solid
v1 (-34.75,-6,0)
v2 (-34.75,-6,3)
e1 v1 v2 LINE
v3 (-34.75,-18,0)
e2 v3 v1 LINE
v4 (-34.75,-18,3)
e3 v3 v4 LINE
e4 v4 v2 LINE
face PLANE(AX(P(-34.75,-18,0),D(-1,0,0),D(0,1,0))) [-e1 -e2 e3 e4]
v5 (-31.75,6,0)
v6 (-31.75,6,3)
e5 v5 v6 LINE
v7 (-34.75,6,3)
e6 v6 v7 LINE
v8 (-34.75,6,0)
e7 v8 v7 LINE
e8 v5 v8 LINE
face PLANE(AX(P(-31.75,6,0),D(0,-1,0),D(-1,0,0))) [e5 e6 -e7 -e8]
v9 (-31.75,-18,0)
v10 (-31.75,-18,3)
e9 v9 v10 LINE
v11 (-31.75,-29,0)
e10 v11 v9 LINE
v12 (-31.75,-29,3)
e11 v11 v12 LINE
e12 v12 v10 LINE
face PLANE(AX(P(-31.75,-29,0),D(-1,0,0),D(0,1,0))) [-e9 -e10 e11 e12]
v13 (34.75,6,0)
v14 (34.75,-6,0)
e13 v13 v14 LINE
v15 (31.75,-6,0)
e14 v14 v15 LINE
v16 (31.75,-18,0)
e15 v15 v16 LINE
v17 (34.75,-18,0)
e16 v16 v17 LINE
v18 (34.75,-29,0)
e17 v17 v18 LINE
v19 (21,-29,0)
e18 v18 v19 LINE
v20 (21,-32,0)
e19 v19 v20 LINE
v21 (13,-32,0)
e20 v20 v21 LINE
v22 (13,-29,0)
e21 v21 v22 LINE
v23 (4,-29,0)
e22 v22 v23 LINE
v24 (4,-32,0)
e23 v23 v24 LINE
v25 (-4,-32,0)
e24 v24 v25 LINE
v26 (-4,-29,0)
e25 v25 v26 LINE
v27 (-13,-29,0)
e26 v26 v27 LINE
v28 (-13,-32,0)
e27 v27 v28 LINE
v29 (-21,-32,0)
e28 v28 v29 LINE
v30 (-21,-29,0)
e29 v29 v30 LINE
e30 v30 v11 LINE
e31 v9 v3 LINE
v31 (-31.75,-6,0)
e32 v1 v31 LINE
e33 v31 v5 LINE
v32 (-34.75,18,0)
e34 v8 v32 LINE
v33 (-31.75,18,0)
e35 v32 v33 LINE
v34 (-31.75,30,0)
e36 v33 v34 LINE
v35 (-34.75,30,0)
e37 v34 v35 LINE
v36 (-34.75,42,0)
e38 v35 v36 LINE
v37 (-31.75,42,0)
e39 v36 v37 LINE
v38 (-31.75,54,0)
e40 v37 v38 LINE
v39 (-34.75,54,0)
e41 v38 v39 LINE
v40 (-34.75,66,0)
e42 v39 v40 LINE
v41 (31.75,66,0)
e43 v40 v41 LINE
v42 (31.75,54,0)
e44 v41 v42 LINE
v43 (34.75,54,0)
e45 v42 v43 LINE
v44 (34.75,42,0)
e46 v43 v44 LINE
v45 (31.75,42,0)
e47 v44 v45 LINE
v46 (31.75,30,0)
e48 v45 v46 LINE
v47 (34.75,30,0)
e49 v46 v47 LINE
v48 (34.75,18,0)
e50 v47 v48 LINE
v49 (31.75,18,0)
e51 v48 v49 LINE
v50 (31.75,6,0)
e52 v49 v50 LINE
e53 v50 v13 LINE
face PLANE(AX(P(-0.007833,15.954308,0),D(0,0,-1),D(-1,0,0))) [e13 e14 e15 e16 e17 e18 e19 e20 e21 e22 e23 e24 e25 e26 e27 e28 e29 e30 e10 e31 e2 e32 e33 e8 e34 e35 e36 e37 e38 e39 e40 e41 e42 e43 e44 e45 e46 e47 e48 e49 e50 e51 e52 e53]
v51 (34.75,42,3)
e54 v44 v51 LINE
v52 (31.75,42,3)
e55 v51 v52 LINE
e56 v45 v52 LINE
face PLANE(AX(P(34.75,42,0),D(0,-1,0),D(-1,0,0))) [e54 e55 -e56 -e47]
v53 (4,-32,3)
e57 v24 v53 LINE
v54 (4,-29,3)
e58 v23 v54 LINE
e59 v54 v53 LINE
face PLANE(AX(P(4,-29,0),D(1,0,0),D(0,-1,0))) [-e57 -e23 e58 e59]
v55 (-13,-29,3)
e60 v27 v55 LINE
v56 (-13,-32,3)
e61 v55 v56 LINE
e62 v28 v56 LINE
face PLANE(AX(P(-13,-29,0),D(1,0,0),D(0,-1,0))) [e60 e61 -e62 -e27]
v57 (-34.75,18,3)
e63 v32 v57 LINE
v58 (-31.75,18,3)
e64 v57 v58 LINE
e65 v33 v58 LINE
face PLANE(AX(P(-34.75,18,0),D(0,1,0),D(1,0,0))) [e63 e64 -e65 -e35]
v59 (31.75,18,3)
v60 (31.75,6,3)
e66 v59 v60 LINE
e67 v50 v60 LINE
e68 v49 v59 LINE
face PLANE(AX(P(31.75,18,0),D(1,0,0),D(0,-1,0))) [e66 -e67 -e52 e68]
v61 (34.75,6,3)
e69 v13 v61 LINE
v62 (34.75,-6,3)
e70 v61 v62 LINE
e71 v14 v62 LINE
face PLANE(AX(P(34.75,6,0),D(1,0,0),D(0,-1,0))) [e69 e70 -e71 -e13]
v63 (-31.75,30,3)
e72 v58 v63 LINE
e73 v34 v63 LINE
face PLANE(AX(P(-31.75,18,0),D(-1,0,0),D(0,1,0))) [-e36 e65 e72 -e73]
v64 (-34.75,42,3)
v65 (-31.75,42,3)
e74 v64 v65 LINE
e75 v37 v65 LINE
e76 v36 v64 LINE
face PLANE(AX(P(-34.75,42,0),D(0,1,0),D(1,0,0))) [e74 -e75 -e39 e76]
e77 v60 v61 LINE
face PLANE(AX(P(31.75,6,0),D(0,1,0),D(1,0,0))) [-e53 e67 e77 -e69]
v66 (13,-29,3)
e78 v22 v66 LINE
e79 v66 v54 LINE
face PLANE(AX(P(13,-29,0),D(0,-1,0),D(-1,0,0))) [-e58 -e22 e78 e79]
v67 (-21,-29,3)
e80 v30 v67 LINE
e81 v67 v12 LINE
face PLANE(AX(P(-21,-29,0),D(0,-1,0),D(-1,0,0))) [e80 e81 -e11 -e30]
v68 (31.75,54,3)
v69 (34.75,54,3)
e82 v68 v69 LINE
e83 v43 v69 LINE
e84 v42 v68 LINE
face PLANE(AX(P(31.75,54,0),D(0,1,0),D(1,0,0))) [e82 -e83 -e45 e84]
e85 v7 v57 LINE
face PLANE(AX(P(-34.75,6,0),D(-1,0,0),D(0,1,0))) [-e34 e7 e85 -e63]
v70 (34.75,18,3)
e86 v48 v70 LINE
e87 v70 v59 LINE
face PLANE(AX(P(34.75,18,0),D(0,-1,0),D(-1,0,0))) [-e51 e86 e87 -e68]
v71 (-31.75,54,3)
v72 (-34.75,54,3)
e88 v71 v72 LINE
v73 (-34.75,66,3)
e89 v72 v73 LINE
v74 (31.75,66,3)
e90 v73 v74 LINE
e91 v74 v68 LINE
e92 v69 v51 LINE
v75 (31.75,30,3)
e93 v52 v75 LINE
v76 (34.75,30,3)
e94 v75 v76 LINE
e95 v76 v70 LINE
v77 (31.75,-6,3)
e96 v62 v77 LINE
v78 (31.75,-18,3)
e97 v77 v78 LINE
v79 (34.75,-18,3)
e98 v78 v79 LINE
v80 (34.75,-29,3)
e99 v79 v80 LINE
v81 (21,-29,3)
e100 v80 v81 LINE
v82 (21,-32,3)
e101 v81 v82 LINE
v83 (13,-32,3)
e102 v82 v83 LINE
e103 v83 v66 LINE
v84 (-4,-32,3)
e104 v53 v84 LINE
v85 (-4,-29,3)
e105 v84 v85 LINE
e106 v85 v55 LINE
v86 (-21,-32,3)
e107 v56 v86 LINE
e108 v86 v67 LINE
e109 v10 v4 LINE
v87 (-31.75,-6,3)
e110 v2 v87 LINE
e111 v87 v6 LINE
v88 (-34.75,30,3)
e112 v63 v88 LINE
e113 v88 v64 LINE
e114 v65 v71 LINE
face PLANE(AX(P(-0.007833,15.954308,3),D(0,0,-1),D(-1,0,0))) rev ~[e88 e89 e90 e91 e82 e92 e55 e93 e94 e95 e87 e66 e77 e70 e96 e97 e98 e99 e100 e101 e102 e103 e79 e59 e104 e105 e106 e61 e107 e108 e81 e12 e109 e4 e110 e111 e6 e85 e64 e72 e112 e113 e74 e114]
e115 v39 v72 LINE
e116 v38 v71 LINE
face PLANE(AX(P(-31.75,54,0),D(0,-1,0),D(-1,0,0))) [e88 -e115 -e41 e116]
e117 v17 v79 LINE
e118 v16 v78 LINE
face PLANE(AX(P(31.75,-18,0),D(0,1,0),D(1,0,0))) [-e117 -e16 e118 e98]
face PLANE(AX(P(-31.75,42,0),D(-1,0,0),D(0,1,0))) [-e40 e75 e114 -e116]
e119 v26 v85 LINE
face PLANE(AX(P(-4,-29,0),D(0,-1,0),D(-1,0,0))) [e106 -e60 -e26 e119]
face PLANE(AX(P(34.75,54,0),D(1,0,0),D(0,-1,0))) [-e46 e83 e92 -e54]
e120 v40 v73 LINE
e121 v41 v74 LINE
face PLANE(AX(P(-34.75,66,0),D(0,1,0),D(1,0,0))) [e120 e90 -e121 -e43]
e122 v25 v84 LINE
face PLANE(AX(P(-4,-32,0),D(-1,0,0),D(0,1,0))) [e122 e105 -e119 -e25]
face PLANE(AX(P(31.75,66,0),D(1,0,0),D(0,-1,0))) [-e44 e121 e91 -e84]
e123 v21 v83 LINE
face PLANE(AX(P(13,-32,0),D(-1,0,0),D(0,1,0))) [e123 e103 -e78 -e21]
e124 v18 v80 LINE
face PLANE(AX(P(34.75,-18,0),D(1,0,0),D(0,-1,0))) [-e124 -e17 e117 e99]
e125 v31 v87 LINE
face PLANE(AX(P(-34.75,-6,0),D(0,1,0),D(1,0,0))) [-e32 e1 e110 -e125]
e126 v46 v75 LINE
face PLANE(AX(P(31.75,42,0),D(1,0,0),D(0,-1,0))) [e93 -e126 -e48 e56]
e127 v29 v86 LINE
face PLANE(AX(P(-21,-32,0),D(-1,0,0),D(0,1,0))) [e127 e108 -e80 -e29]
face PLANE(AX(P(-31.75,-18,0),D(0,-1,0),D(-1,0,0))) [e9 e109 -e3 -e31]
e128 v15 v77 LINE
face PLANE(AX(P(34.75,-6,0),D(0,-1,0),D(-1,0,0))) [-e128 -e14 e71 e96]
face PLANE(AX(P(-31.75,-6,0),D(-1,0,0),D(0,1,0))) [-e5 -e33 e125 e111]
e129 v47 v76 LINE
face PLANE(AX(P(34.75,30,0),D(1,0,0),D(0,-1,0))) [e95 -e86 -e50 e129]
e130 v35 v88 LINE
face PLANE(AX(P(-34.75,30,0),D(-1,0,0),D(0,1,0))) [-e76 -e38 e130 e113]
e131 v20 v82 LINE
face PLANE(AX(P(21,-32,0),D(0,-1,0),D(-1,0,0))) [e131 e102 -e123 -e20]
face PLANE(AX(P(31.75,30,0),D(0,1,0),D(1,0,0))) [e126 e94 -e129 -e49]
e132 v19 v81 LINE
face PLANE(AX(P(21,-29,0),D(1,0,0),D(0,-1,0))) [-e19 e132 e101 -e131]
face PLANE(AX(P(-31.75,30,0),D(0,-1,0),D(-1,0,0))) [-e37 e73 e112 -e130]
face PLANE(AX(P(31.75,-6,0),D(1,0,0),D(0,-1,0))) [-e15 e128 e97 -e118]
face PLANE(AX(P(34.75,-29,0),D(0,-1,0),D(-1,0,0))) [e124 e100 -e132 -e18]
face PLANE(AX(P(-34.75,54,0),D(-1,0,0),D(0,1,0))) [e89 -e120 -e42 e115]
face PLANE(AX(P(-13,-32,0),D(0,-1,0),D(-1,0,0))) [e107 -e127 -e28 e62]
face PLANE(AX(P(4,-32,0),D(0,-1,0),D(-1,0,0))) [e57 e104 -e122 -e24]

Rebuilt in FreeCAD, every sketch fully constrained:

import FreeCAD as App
import Part
import Sketcher
from FreeCAD import Vector

doc = App.newDocument("Part")
body = doc.addObject("PartDesign::Body", "Body")

sketch1 = body.newObject("Sketcher::SketchObject", "Sketch")
sketch1.AttachmentSupport = (doc.getObject("XY_Plane"), [""])
sketch1.MapMode = "FlatFace"
sketch1.addGeometry([
    Part.LineSegment(Vector(21, -29, 0), Vector(34.8, -29, 0)),
    Part.LineSegment(Vector(34.8, -29, 0), Vector(34.8, -18, 0)),
    Part.LineSegment(Vector(34.8, -18, 0), Vector(31.8, -18, 0)),
    Part.LineSegment(Vector(31.8, -18, 0), Vector(31.8, -6, 0)),
    Part.LineSegment(Vector(31.8, -6, 0), Vector(34.8, -6, 0)),
    Part.LineSegment(Vector(34.8, -6, 0), Vector(34.8, 6, 0)),
    Part.LineSegment(Vector(34.8, 6, 0), Vector(31.8, 6, 0)),
    Part.LineSegment(Vector(31.8, 6, 0), Vector(31.8, 18, 0)),
    Part.LineSegment(Vector(31.8, 18, 0), Vector(34.8, 18, 0)),
    Part.LineSegment(Vector(34.8, 18, 0), Vector(34.8, 30, 0)),
    Part.LineSegment(Vector(34.8, 30, 0), Vector(31.8, 30, 0)),
    Part.LineSegment(Vector(31.8, 30, 0), Vector(31.8, 42, 0)),
    Part.LineSegment(Vector(31.8, 42, 0), Vector(34.8, 42, 0)),
    Part.LineSegment(Vector(34.8, 42, 0), Vector(34.8, 54, 0)),
    Part.LineSegment(Vector(34.8, 54, 0), Vector(31.8, 54, 0)),
    Part.LineSegment(Vector(31.8, 54, 0), Vector(31.8, 66, 0)),
    Part.LineSegment(Vector(31.8, 66, 0), Vector(-34.8, 66, 0)),
    Part.LineSegment(Vector(-34.8, 66, 0), Vector(-34.8, 54, 0)),
    Part.LineSegment(Vector(-34.8, 54, 0), Vector(-31.8, 54, 0)),
    Part.LineSegment(Vector(-31.8, 54, 0), Vector(-31.8, 42, 0)),
    Part.LineSegment(Vector(-31.8, 42, 0), Vector(-34.8, 42, 0)),
    Part.LineSegment(Vector(-34.8, 42, 0), Vector(-34.8, 30, 0)),
    Part.LineSegment(Vector(-34.8, 30, 0), Vector(-31.8, 30, 0)),
    Part.LineSegment(Vector(-31.8, 30, 0), Vector(-31.8, 18, 0)),
    Part.LineSegment(Vector(-31.8, 18, 0), Vector(-34.8, 18, 0)),
    Part.LineSegment(Vector(-34.8, 18, 0), Vector(-34.8, 6, 0)),
    Part.LineSegment(Vector(-34.8, 6, 0), Vector(-31.8, 6, 0)),
    Part.LineSegment(Vector(-31.8, 6, 0), Vector(-31.8, -6, 0)),
    Part.LineSegment(Vector(-31.8, -6, 0), Vector(-34.8, -6, 0)),
    Part.LineSegment(Vector(-34.8, -6, 0), Vector(-34.8, -18, 0)),
    Part.LineSegment(Vector(-34.8, -18, 0), Vector(-31.8, -18, 0)),
    Part.LineSegment(Vector(-31.8, -18, 0), Vector(-31.8, -29, 0)),
    Part.LineSegment(Vector(-31.8, -29, 0), Vector(-21, -29, 0)),
    Part.LineSegment(Vector(-21, -29, 0), Vector(-21, -32, 0)),
    Part.LineSegment(Vector(-21, -32, 0), Vector(-13, -32, 0)),
    Part.LineSegment(Vector(-13, -32, 0), Vector(-13, -29, 0)),
    Part.LineSegment(Vector(-13, -29, 0), Vector(-4, -29, 0)),
    Part.LineSegment(Vector(-4, -29, 0), Vector(-4, -32, 0)),
    Part.LineSegment(Vector(-4, -32, 0), Vector(4, -32, 0)),
    Part.LineSegment(Vector(4, -32, 0), Vector(4, -29, 0)),
    Part.LineSegment(Vector(4, -29, 0), Vector(13, -29, 0)),
    Part.LineSegment(Vector(13, -29, 0), Vector(13, -32, 0)),
    Part.LineSegment(Vector(13, -32, 0), Vector(21, -32, 0)),
    Part.LineSegment(Vector(21, -32, 0), Vector(21, -29, 0)),
], False)
sketch1.addConstraint([
    Sketcher.Constraint("Coincident", 0, 2, 1, 1),
    Sketcher.Constraint("Coincident", 1, 2, 2, 1),
    Sketcher.Constraint("Coincident", 2, 2, 3, 1),
    Sketcher.Constraint("Coincident", 3, 2, 4, 1),
    Sketcher.Constraint("Coincident", 4, 2, 5, 1),
    Sketcher.Constraint("Coincident", 5, 2, 6, 1),
    Sketcher.Constraint("Coincident", 6, 2, 7, 1),
    Sketcher.Constraint("Coincident", 7, 2, 8, 1),
    Sketcher.Constraint("Coincident", 8, 2, 9, 1),
    Sketcher.Constraint("Coincident", 9, 2, 10, 1),
    Sketcher.Constraint("Coincident", 10, 2, 11, 1),
    Sketcher.Constraint("Coincident", 11, 2, 12, 1),
    Sketcher.Constraint("Coincident", 12, 2, 13, 1),
    Sketcher.Constraint("Coincident", 13, 2, 14, 1),
    Sketcher.Constraint("Coincident", 14, 2, 15, 1),
    Sketcher.Constraint("Coincident", 15, 2, 16, 1),
    Sketcher.Constraint("Coincident", 16, 2, 17, 1),
    Sketcher.Constraint("Coincident", 17, 2, 18, 1),
    Sketcher.Constraint("Coincident", 18, 2, 19, 1),
    Sketcher.Constraint("Coincident", 19, 2, 20, 1),
    Sketcher.Constraint("Coincident", 20, 2, 21, 1),
    Sketcher.Constraint("Coincident", 21, 2, 22, 1),
    Sketcher.Constraint("Coincident", 22, 2, 23, 1),
    Sketcher.Constraint("Coincident", 23, 2, 24, 1),
    Sketcher.Constraint("Coincident", 24, 2, 25, 1),
    Sketcher.Constraint("Coincident", 25, 2, 26, 1),
    Sketcher.Constraint("Coincident", 26, 2, 27, 1),
    Sketcher.Constraint("Coincident", 27, 2, 28, 1),
    Sketcher.Constraint("Coincident", 28, 2, 29, 1),
    Sketcher.Constraint("Coincident", 29, 2, 30, 1),
    Sketcher.Constraint("Coincident", 30, 2, 31, 1),
    Sketcher.Constraint("Coincident", 31, 2, 32, 1),
    Sketcher.Constraint("Coincident", 32, 2, 33, 1),
    Sketcher.Constraint("Coincident", 33, 2, 34, 1),
    Sketcher.Constraint("Coincident", 34, 2, 35, 1),
    Sketcher.Constraint("Coincident", 35, 2, 36, 1),
    Sketcher.Constraint("Coincident", 36, 2, 37, 1),
    Sketcher.Constraint("Coincident", 37, 2, 38, 1),
    Sketcher.Constraint("Coincident", 38, 2, 39, 1),
    Sketcher.Constraint("Coincident", 39, 2, 40, 1),
    Sketcher.Constraint("Coincident", 40, 2, 41, 1),
    Sketcher.Constraint("Coincident", 41, 2, 42, 1),
    Sketcher.Constraint("Coincident", 42, 2, 43, 1),
    Sketcher.Constraint("Coincident", 43, 2, 0, 1),
    Sketcher.Constraint("Horizontal", 0),
    Sketcher.Constraint("Vertical", 1),
    Sketcher.Constraint("Horizontal", 2),
    Sketcher.Constraint("Vertical", 3),
    Sketcher.Constraint("Horizontal", 4),
    Sketcher.Constraint("Vertical", 5),
    Sketcher.Constraint("Horizontal", 6),
    Sketcher.Constraint("Vertical", 7),
    Sketcher.Constraint("Horizontal", 8),
    Sketcher.Constraint("Vertical", 9),
    Sketcher.Constraint("Horizontal", 10),
    Sketcher.Constraint("Vertical", 11),
    Sketcher.Constraint("Horizontal", 12),
    Sketcher.Constraint("Vertical", 13),
    Sketcher.Constraint("Horizontal", 14),
    Sketcher.Constraint("Vertical", 15),
    Sketcher.Constraint("Horizontal", 16),
    Sketcher.Constraint("Vertical", 17),
    Sketcher.Constraint("Horizontal", 18),
    Sketcher.Constraint("Vertical", 19),
    Sketcher.Constraint("Horizontal", 20),
    Sketcher.Constraint("Vertical", 21),
    Sketcher.Constraint("Horizontal", 22),
    Sketcher.Constraint("Vertical", 23),
    Sketcher.Constraint("Horizontal", 24),
    Sketcher.Constraint("Vertical", 25),
    Sketcher.Constraint("Horizontal", 26),
    Sketcher.Constraint("Vertical", 27),
    Sketcher.Constraint("Horizontal", 28),
    Sketcher.Constraint("Vertical", 29),
    Sketcher.Constraint("Horizontal", 30),
    Sketcher.Constraint("Vertical", 31),
    Sketcher.Constraint("Horizontal", 32),
    Sketcher.Constraint("Vertical", 33),
    Sketcher.Constraint("Horizontal", 34),
    Sketcher.Constraint("Vertical", 35),
    Sketcher.Constraint("Horizontal", 36),
    Sketcher.Constraint("Vertical", 37),
    Sketcher.Constraint("Horizontal", 38),
    Sketcher.Constraint("Vertical", 39),
    Sketcher.Constraint("Horizontal", 40),
    Sketcher.Constraint("Vertical", 41),
    Sketcher.Constraint("Horizontal", 42),
    Sketcher.Constraint("Vertical", 43),
    Sketcher.Constraint("Symmetric", 2, 2, 23, 2, -1, 1),
    Sketcher.Constraint("Symmetric", 4, 2, 25, 2, -1, 1),
    Sketcher.Constraint("Symmetric", 6, 2, 27, 2, -1, 1),
    Sketcher.Constraint("Symmetric", 8, 2, 29, 2, -1, 1),
    Sketcher.Constraint("Symmetric", 13, 2, 17, 2, -2),
    Sketcher.Constraint("Symmetric", 11, 2, 19, 2, -2),
    Sketcher.Constraint("Symmetric", 9, 2, 21, 2, -2),
    Sketcher.Constraint("Symmetric", 7, 2, 23, 2, -2),
    Sketcher.Constraint("Symmetric", 4, 2, 28, 2, -2),
    Sketcher.Constraint("Symmetric", 36, 2, 39, 2, -2),
    Sketcher.Constraint("Symmetric", 34, 2, 41, 2, -2),
    Sketcher.Constraint("Symmetric", 32, 2, 43, 2, -2),
    Sketcher.Constraint("Horizontal", 32, 2, 35, 2),
    Sketcher.Constraint("Horizontal", 34, 2, 37, 2),
    Sketcher.Constraint("Vertical", 1, 2, 4, 2),
    Sketcher.Constraint("Vertical", 7, 2, 10, 2),
    Sketcher.Constraint("Vertical", 9, 2, 12, 2),
    Sketcher.Constraint("Vertical", 11, 2, 14, 2),
    Sketcher.Constraint("Vertical", 27, 2, 30, 2),
    Sketcher.Constraint("Equal", 34, 38),
    Sketcher.Constraint("Equal", 3, 5),
    Sketcher.Constraint("Equal", 7, 9),
    Sketcher.Constraint("Equal", 9, 11),
    Sketcher.Constraint("Equal", 11, 13),
    Sketcher.Constraint("Equal", 13, 15),
    Sketcher.Constraint("Equal", 30, 33),
    Sketcher.Constraint("DistanceX", 2, 2, 2, 1, 3.0),
    Sketcher.Constraint("DistanceX", 34, 1, 34, 2, 8.0),
    Sketcher.Constraint("DistanceX", 36, 1, 36, 2, 9.0),
    Sketcher.Constraint("DistanceY", 1, 1, 1, 2, 11.0),
    Sketcher.Constraint("DistanceY", 3, 1, 3, 2, 12.0),
    Sketcher.Constraint("DistanceX", 16, 2, 16, 1, 66.5),
])
pad1 = body.newObject("PartDesign::Pad", "Pad")
pad1.Profile = sketch1
pad1.Length = 3

doc.recompute()
